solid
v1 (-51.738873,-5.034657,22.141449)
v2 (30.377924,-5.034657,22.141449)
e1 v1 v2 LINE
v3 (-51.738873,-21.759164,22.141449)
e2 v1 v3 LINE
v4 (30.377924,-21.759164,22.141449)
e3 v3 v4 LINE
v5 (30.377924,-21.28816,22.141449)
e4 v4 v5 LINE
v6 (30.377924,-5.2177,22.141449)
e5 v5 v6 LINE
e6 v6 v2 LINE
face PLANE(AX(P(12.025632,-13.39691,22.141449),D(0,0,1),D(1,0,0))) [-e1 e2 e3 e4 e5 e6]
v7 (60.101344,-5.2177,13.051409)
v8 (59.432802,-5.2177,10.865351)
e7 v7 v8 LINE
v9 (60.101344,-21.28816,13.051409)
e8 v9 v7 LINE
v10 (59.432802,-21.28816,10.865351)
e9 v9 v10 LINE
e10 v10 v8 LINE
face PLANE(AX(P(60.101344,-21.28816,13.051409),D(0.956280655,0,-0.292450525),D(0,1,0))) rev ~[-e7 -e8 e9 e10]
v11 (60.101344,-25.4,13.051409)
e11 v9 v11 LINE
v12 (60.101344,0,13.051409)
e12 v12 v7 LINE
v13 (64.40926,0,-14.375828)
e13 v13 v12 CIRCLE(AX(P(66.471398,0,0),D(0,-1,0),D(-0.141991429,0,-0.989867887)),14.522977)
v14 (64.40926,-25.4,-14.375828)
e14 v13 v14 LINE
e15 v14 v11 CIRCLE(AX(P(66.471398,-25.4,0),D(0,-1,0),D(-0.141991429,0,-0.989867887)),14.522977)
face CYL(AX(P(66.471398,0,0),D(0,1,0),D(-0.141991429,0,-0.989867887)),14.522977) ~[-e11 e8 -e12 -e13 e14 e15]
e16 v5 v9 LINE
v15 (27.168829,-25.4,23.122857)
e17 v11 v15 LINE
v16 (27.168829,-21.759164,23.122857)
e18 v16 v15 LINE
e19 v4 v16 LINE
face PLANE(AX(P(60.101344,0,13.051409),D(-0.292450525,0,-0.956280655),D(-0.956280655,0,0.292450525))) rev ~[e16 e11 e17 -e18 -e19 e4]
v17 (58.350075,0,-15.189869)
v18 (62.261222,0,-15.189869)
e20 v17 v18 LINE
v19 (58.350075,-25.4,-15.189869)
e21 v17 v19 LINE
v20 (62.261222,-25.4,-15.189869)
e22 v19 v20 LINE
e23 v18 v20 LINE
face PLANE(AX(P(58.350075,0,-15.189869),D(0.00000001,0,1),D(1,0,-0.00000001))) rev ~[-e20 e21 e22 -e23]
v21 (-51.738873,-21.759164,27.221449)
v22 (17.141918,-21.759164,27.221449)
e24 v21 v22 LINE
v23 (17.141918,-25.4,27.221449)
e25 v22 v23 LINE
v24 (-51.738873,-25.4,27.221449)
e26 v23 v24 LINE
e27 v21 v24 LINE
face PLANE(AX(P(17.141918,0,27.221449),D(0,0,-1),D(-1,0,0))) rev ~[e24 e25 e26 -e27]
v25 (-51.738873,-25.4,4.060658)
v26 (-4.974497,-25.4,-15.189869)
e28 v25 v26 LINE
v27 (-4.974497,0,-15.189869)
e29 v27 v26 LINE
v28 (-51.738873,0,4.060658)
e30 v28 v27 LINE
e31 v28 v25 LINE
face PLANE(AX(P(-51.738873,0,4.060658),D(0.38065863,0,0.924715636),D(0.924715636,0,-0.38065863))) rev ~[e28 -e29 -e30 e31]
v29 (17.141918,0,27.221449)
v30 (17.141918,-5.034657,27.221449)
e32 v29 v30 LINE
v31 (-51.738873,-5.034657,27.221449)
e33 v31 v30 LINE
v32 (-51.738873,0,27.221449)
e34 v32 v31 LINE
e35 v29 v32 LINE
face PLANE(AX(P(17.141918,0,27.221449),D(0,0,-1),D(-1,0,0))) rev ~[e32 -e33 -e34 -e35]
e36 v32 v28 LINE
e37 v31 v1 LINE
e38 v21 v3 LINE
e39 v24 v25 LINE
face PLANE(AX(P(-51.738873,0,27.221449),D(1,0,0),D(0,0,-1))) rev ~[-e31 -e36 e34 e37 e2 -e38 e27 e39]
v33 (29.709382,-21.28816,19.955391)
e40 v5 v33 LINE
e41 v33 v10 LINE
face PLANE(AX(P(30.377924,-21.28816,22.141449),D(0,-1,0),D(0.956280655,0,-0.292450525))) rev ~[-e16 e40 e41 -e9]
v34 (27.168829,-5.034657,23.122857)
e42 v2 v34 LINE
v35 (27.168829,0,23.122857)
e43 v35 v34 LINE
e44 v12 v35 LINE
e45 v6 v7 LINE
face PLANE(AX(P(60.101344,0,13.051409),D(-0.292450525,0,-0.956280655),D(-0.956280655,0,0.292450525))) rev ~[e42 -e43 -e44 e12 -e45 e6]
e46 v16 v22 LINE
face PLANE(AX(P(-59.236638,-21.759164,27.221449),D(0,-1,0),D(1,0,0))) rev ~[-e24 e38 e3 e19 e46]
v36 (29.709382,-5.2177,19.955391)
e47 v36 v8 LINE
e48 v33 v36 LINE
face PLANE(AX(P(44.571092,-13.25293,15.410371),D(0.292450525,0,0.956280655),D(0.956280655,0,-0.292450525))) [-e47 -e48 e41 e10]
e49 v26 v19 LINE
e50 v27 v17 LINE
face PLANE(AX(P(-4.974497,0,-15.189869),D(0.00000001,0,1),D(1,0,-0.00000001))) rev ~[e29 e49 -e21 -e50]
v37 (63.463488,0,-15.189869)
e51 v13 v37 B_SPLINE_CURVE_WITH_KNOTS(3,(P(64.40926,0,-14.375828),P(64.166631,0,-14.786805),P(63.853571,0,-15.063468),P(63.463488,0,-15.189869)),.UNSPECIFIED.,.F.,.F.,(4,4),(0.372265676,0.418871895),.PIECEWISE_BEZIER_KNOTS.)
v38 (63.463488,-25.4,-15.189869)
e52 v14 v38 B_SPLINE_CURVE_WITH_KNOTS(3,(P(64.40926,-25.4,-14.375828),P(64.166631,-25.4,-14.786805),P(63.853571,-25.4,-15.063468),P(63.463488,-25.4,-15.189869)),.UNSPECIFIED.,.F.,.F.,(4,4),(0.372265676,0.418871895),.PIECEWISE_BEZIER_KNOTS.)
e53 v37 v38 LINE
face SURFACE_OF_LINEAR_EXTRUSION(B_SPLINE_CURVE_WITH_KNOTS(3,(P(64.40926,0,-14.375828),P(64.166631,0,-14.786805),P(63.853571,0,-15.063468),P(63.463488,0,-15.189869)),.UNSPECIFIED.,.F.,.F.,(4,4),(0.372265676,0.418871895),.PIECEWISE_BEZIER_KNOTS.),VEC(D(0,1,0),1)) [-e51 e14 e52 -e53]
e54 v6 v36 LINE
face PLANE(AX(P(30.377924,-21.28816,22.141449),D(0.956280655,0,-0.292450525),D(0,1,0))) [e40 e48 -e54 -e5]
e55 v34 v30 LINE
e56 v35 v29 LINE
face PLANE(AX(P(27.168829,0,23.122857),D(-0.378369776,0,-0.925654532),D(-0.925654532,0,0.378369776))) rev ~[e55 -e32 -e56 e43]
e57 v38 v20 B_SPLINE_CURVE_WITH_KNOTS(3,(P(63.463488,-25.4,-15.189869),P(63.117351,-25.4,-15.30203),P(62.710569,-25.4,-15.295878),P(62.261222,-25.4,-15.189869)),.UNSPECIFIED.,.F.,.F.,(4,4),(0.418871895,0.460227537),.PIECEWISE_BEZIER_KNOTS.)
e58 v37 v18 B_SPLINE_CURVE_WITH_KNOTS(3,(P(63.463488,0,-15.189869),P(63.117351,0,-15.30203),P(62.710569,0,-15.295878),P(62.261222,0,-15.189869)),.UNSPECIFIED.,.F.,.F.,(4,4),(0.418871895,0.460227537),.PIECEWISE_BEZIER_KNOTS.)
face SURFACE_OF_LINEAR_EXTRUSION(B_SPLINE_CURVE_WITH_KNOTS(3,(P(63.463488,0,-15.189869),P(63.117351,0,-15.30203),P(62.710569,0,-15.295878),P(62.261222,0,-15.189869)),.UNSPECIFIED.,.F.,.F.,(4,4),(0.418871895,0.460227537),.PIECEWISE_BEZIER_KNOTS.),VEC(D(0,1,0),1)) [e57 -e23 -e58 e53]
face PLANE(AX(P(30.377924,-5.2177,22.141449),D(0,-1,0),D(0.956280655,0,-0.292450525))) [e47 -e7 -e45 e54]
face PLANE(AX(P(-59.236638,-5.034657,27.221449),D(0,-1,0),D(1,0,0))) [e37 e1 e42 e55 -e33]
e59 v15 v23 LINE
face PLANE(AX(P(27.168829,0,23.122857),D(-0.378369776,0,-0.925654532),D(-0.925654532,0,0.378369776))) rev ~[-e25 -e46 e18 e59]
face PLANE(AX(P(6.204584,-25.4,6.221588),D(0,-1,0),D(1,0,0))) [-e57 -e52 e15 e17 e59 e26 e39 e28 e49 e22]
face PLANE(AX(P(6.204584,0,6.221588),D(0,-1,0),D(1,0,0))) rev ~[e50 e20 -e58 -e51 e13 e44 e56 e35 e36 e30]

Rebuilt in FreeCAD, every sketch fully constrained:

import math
import FreeCAD as App
import Part
import Sketcher
Q = App.Units.Quantity

doc = App.newDocument("Part")
body = doc.addObject("PartDesign::Body", "Body")

sketch1 = doc.addObject("Sketcher::SketchObject", "Sketch")
body.addObject(sketch1)
sketch1.AttachmentSupport = (doc.XZ_Plane, [""])
sketch1.MapMode = "FlatFace"
sketch1.addGeometry([
    Part.LineSegment(App.Vector(17.141918, 27.221449, 0), App.Vector(-51.738873, 27.221449, 0)),
    Part.LineSegment(App.Vector(-51.738873, 27.221449, 0), App.Vector(-51.738873, 4.060658, 0)),
    Part.LineSegment(App.Vector(-51.738873, 4.060658, 0), App.Vector(-4.974497, -15.189869, 0)),
    Part.LineSegment(App.Vector(-4.974497, -15.189869, 0), App.Vector(58.350075, -15.189869, 0)),
    Part.LineSegment(App.Vector(58.350075, -15.189869, 0), App.Vector(62.261222, -15.189869, 0)),
    Part.BSplineCurve([App.Vector(63.463488, -15.189869, 0), App.Vector(63.117351, -15.30203, 0), App.Vector(62.710569, -15.295878, 0), App.Vector(62.261222, -15.189869, 0)], [4, 4], [0.418871895, 0.460227537], False, 3, [1, 1, 1, 1], False),
    Part.BSplineCurve([App.Vector(64.40926, -14.375828, 0), App.Vector(64.166631, -14.786805, 0), App.Vector(63.853571, -15.063468, 0), App.Vector(63.463488, -15.189869, 0)], [4, 4], [0.372265676, 0.418871895], False, 3, [1, 1, 1, 1], False),
    Part.ArcOfCircle(Part.Circle(App.Vector(66.471398, 0, 0), App.Vector(0, 0, 1), 14.522977), math.radians(-98.163098), math.radians(116.015804)),
    Part.LineSegment(App.Vector(60.101344, 13.051409, 0), App.Vector(27.168829, 23.122857, 0)),
    Part.LineSegment(App.Vector(27.168829, 23.122857, 0), App.Vector(17.141918, 27.221449, 0)),
], False)
sketch1.addConstraint([
    Sketcher.Constraint("Block", 5),
    Sketcher.Constraint("Block", 6),
    Sketcher.Constraint("Coincident", 0, 2, 1, 1),
    Sketcher.Constraint("Coincident", 1, 2, 2, 1),
    Sketcher.Constraint("Coincident", 2, 2, 3, 1),
    Sketcher.Constraint("Coincident", 3, 2, 4, 1),
    Sketcher.Constraint("Coincident", 4, 2, 5, 2),
    Sketcher.Constraint("Coincident", 6, 1, 7, 1),
    Sketcher.Constraint("Coincident", 7, 2, 8, 1),
    Sketcher.Constraint("Coincident", 8, 2, 9, 1),
    Sketcher.Constraint("Coincident", 9, 2, 0, 1),
    Sketcher.Constraint("Horizontal", 0),
    Sketcher.Constraint("Vertical", 1),
    Sketcher.Constraint("Horizontal", 3),
    Sketcher.Constraint("Horizontal", 4),
    Sketcher.Constraint("PointOnObject", 7, 3, -1),
    Sketcher.Constraint("Radius", 7, Q("14.522977 mm")),
    Sketcher.Constraint("DistanceX", 0, 2, 0, 1, Q("68.880791 mm")),
    Sketcher.Constraint("DistanceY", 1, 2, 1, 1, Q("23.160791 mm")),
    Sketcher.Constraint("Distance", 2, Q("50.571629 mm")),
    Sketcher.Constraint("Distance", 9, Q("10.832239 mm")),
    Sketcher.Constraint("DistanceX", 3, 1, 3, 2, Q("63.324573 mm")),
    Sketcher.Constraint("DistanceX", 4, 1, 4, 2, Q("3.911147 mm")),
    Sketcher.Constraint("DistanceY", -1, 1, 0, 2, Q("27.221449 mm")),
    Sketcher.Constraint("DistanceY", -1, 1, 7, 2, Q("13.051409 mm")),
    Sketcher.Constraint("DistanceX", -1, 1, 8, 2, Q("27.168829 mm")),
])
pad1 = doc.addObject("PartDesign::Pad", "Pad")
body.addObject(pad1)
pad1.Profile = sketch1
pad1.Length = Q("1 in")

sketch2 = doc.addObject("Sketcher::SketchObject", "Sketch001")
body.addObject(sketch2)
sketch2.AttachmentSupport = (doc.XY_Plane, [""])
sketch2.MapMode = "FlatFace"
sketch2.AttachmentOffset = App.Placement(App.Vector(0, 0, 27.221449), App.Rotation())
sketch2.addGeometry([
    Part.LineSegment(App.Vector(-59.236638, -5.034657, 0), App.Vector(-59.236638, -21.759164, 0)),
    Part.LineSegment(App.Vector(-59.236638, -21.759164, 0), App.Vector(83.287902, -21.759164, 0)),
    Part.LineSegment(App.Vector(83.287902, -21.759164, 0), App.Vector(83.287902, -5.034657, 0)),
    Part.LineSegment(App.Vector(83.287902, -5.034657, 0), App.Vector(-59.236638, -5.034657, 0)),
], False)
sketch2.addConstraint([
    Sketcher.Constraint("Coincident", 0, 2, 1, 1),
    Sketcher.Constraint("Coincident", 1, 2, 2, 1),
    Sketcher.Constraint("Coincident", 2, 2, 3, 1),
    Sketcher.Constraint("Coincident", 3, 2, 0, 1),
    Sketcher.Constraint("Vertical", 0),
    Sketcher.Constraint("Horizontal", 1),
    Sketcher.Constraint("Vertical", 2),
    Sketcher.Constraint("Horizontal", 3),
    Sketcher.Constraint("DistanceX", 1, 1, 1, 2, Q("142.52454 mm")),
    Sketcher.Constraint("DistanceY", 0, 2, 0, 1, Q("16.724506 mm")),
    Sketcher.Constraint("DistanceX", 0, 2, -1, 1, Q("59.236638 mm")),
    Sketcher.Constraint("DistanceY", 0, 2, -1, 1, Q("21.759164 mm")),
])
pocket1 = doc.addObject("PartDesign::Pocket", "Pocket")
body.addObject(pocket1)
pocket1.Profile = sketch2
pocket1.Length = Q("0.2 in")

sketch3 = doc.addObject("Sketcher::SketchObject", "Sketch002")
body.addObject(sketch3)
sketch3.Placement = App.Placement(App.Vector(8.790326, 0, 28.743386), App.Rotation(App.Vector(0.956280655, 0, -0.292450525), App.Vector(0, 1.000000001, 0), App.Vector(0.292450525, 0, 0.956280655), "ZXY"))
sketch3.addGeometry([
    Part.LineSegment(App.Vector(22.574543, -5.2177, 0), App.Vector(22.574543, -21.28816, 0)),
    Part.LineSegment(App.Vector(22.574543, -21.28816, 0), App.Vector(53.656861, -21.28816, 0)),
    Part.LineSegment(App.Vector(53.656861, -21.28816, 0), App.Vector(53.656861, -5.2177, 0)),
    Part.LineSegment(App.Vector(53.656861, -5.2177, 0), App.Vector(22.574543, -5.2177, 0)),
], False)
sketch3.addConstraint([
    Sketcher.Constraint("Coincident", 0, 2, 1, 1),
    Sketcher.Constraint("Coincident", 1, 2, 2, 1),
    Sketcher.Constraint("Coincident", 2, 2, 3, 1),
    Sketcher.Constraint("Coincident", 3, 2, 0, 1),
    Sketcher.Constraint("Vertical", 0),
    Sketcher.Constraint("Horizontal", 1),
    Sketcher.Constraint("Vertical", 2),
    Sketcher.Constraint("Horizontal", 3),
    Sketcher.Constraint("DistanceY", 0, 2, 0, 1, Q("16.07046 mm")),
    Sketcher.Constraint("DistanceY", 2, 2, -1, 1, Q("5.2177 mm")),
    Sketcher.Constraint("DistanceX", 1, 1, 1, 2, Q("31.082318 mm")),
    Sketcher.Constraint("DistanceX", -1, 1, 1, 2, Q("53.656861 mm")),
])
pocket2 = doc.addObject("PartDesign::Pocket", "Pocket001")
body.addObject(pocket2)
pocket2.Profile = sketch3
pocket2.Length = Q("0.09 in")

doc.recompute()
